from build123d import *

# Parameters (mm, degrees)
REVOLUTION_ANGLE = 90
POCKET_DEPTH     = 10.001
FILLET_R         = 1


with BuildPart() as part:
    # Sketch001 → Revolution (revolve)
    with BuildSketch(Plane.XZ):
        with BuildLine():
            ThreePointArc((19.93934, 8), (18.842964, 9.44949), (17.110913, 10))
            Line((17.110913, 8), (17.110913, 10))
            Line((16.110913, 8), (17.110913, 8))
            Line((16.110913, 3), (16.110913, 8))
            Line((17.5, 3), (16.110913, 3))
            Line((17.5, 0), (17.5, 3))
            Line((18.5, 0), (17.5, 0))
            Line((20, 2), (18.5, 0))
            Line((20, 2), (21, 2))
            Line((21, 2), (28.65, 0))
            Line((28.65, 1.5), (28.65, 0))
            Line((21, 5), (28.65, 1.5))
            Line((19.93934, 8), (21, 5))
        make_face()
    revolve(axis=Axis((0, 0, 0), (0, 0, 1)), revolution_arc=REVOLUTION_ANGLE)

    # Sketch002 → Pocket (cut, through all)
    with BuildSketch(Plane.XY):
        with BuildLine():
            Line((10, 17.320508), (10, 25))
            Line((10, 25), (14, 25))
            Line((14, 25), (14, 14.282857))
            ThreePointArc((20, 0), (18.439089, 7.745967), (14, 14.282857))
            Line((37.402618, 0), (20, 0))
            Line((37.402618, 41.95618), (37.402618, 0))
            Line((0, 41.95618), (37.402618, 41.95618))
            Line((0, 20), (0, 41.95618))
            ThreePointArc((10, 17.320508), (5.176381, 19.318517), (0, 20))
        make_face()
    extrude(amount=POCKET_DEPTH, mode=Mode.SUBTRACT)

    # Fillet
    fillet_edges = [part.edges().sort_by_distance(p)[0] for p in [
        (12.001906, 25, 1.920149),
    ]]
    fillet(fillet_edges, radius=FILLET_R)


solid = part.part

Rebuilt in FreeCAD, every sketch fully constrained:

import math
import FreeCAD as App
import Part
import Sketcher

V = App.Vector


def edges_at(feature, points):
    """Names of the edges that pass closest to the given points."""
    edges = feature.Shape.Edges
    near = lambda p: min(range(len(edges)), key=lambda i: edges[i].distToShape(Part.Vertex(*p))[0])
    return sorted({f"Edge{near(p) + 1}" for p in points})

doc = App.newDocument("Part")
body = doc.addObject("PartDesign::Body", "Body")

# Sketch on XZ plane
sketch1 = body.newObject("Sketcher::SketchObject", "Sketch")
sketch1.AttachmentSupport = (doc.getObject("XZ_Plane"), [""])
sketch1.MapMode = "FlatFace"
sketch1.addGeometry([
    Part.ArcOfCircle(Part.Circle(V(17.110914, 7.000002, 0), V(0, 0, 1), 2.999998), math.radians(19.471197), math.radians(90.000021)),  # 0
    Part.LineSegment(V(17.110913, 10, 0), V(17.110913, 8, 0)),  # 1
    Part.LineSegment(V(17.110913, 8, 0), V(16.110913, 8, 0)),  # 2
    Part.LineSegment(V(16.110913, 8, 0), V(16.110913, 3, 0)),  # 3
    Part.LineSegment(V(16.110913, 3, 0), V(17.5, 3, 0)),  # 4
    Part.LineSegment(V(17.5, 3, 0), V(17.5, 0, 0)),  # 5
    Part.LineSegment(V(17.5, 0, 0), V(18.5, 0, 0)),  # 6
    Part.LineSegment(V(18.5, 0, 0), V(20, 2, 0)),  # 7
    Part.LineSegment(V(20, 2, 0), V(21, 2, 0)),  # 8
    Part.LineSegment(V(21, 2, 0), V(28.65, 0, 0)),  # 9
    Part.LineSegment(V(28.65, 0, 0), V(28.65, 1.5, 0)),  # 10
    Part.LineSegment(V(28.65, 1.5, 0), V(21, 5, 0)),  # 11
    Part.LineSegment(V(21, 5, 0), V(19.93934, 8, 0)),  # 12
], False)
sketch1.addConstraint([
    Sketcher.Constraint("Coincident", 0, 2, 1, 1),
    Sketcher.Constraint("Coincident", 1, 2, 2, 1),
    Sketcher.Constraint("Coincident", 2, 2, 3, 1),
    Sketcher.Constraint("Coincident", 3, 2, 4, 1),
    Sketcher.Constraint("Coincident", 4, 2, 5, 1),
    Sketcher.Constraint("Coincident", 5, 2, 6, 1),
    Sketcher.Constraint("Coincident", 6, 2, 7, 1),
    Sketcher.Constraint("Coincident", 7, 2, 8, 1),
    Sketcher.Constraint("Coincident", 8, 2, 9, 1),
    Sketcher.Constraint("Coincident", 9, 2, 10, 1),
    Sketcher.Constraint("Coincident", 10, 2, 11, 1),
    Sketcher.Constraint("Coincident", 11, 2, 12, 1),
    Sketcher.Constraint("Tangent", 12, 2, 0, 1),
    Sketcher.Constraint("Vertical", 1),
    Sketcher.Constraint("Horizontal", 2),
    Sketcher.Constraint("Vertical", 3),
    Sketcher.Constraint("Horizontal", 4),
    Sketcher.Constraint("Vertical", 5),
    Sketcher.Constraint("Horizontal", 6),
    Sketcher.Constraint("Horizontal", 8),
    Sketcher.Constraint("Vertical", 10),
    Sketcher.Constraint("PointOnObject", 5, 2, -1),
    Sketcher.Constraint("PointOnObject", 9, 2, -1),
    Sketcher.Constraint("Horizontal", 2, 2, 12, 2),
    Sketcher.Constraint("Vertical", 8, 2, 11, 2),
    Sketcher.Constraint("Equal", 2, 6),
    Sketcher.Constraint("Equal", 6, 8),
    Sketcher.Constraint("Radius", 0, 2.999998),
    Sketcher.Constraint("DistanceX", 2, 2, 2, 1, 1.0),
    Sketcher.Constraint("DistanceY", 1, 2, 1, 1, 2.0),
    Sketcher.Constraint("DistanceY", 3, 2, 3, 1, 5.0),
    Sketcher.Constraint("DistanceY", 5, 2, 5, 1, 3.0),
    Sketcher.Constraint("DistanceY", 10, 1, 10, 2, 1.5),
    Sketcher.Constraint("DistanceX", -1, 1, 7, 2, 20.0),
    Sketcher.Constraint("DistanceY", -1, 1, 7, 2, 2.0),
    Sketcher.Constraint("DistanceY", -1, 1, 11, 2, 5.0),
    Sketcher.Constraint("DistanceX", 2, 2, 0, 3, 1.000001),
    Sketcher.Constraint("Distance", 7, 2.5),
    Sketcher.Constraint("DistanceX", -1, 1, 9, 2, 28.65),
])
revolution = body.newObject("PartDesign::Revolution", "Revolution")
revolution.Profile = sketch1
revolution.ReferenceAxis = (sketch1, ["V_Axis"])
revolution.Angle = 90

# Sketch on XY plane
sketch2 = body.newObject("Sketcher::SketchObject", "Sketch001")
sketch2.AttachmentSupport = (doc.getObject("XY_Plane"), [""])
sketch2.MapMode = "FlatFace"
sketch2.addGeometry([
    Part.LineSegment(V(10, 17.320508, 0), V(10, 25, 0)),  # 0
    Part.LineSegment(V(10, 25, 0), V(14, 25, 0)),  # 1
    Part.LineSegment(V(14, 25, 0), V(14, 14.282857, 0)),  # 2
    Part.ArcOfCircle(Part.Circle(V(0.000002, 0.000001, 0), V(0, 0, 1), 19.999998), math.radians(-0.000002), math.radians(45.572998)),  # 3
    Part.LineSegment(V(20, 0, 0), V(37.402618, 0, 0)),  # 4
    Part.LineSegment(V(37.402618, 0, 0), V(37.402618, 41.95618, 0)),  # 5
    Part.LineSegment(V(37.402618, 41.95618, 0), V(0, 41.95618, 0)),  # 6
    Part.LineSegment(V(0, 41.95618, 0), V(0, 20, 0)),  # 7
    Part.ArcOfCircle(Part.Circle(V(0.000004, 0.000015, 0), V(0, 0, 1), 19.999985), math.radians(59.999988), math.radians(90.000011)),  # 8
], False)
sketch2.addConstraint([
    Sketcher.Constraint("Coincident", 0, 2, 1, 1),
    Sketcher.Constraint("Coincident", 1, 2, 2, 1),
    Sketcher.Constraint("Coincident", 2, 2, 3, 2),
    Sketcher.Constraint("Coincident", 3, 1, 4, 1),
    Sketcher.Constraint("Coincident", 4, 2, 5, 1),
    Sketcher.Constraint("Coincident", 5, 2, 6, 1),
    Sketcher.Constraint("Coincident", 6, 2, 7, 1),
    Sketcher.Constraint("Coincident", 7, 2, 8, 2),
    Sketcher.Constraint("Coincident", 8, 1, 0, 1),
    Sketcher.Constraint("Vertical", 0),
    Sketcher.Constraint("Horizontal", 1),
    Sketcher.Constraint("Vertical", 2),
    Sketcher.Constraint("Horizontal", 4),
    Sketcher.Constraint("Vertical", 5),
    Sketcher.Constraint("Horizontal", 6),
    Sketcher.Constraint("Vertical", 7),
    Sketcher.Constraint("Coincident", 3, 3, -1, 1),
    Sketcher.Constraint("PointOnObject", 3, 1, -1),
    Sketcher.Constraint("PointOnObject", 6, 2, -2),
    Sketcher.Constraint("Radius", 3, 19.999998),
    Sketcher.Constraint("DistanceX", 1, 1, 1, 2, 4.0),
    Sketcher.Constraint("DistanceX", -1, 1, 0, 2, 10.0),
    Sketcher.Constraint("DistanceY", -1, 1, 0, 2, 25.0),
    Sketcher.Constraint("DistanceY", -1, 1, 7, 2, 20.0),
    Sketcher.Constraint("Radius", 8, 19.999985),
    Sketcher.Constraint("DistanceY", 0, 1, 0, 2, 7.679492),
    Sketcher.Constraint("DistanceY", 5, 1, 5, 2, 41.95618),
    Sketcher.Constraint("DistanceX", 4, 1, 4, 2, 17.402618),
])
pocket1 = body.newObject("PartDesign::Pocket", "Pocket")
pocket1.Profile = sketch2
pocket1.Type = "ThroughAll"
pocket1.Reversed = True
doc.recompute()

fillet = body.newObject("PartDesign::Fillet", "Fillet")
fillet.Base = (pocket1, edges_at(pocket1, [(12.002, 25, 1.92)]))
fillet.Radius = 1

doc.recompute()
